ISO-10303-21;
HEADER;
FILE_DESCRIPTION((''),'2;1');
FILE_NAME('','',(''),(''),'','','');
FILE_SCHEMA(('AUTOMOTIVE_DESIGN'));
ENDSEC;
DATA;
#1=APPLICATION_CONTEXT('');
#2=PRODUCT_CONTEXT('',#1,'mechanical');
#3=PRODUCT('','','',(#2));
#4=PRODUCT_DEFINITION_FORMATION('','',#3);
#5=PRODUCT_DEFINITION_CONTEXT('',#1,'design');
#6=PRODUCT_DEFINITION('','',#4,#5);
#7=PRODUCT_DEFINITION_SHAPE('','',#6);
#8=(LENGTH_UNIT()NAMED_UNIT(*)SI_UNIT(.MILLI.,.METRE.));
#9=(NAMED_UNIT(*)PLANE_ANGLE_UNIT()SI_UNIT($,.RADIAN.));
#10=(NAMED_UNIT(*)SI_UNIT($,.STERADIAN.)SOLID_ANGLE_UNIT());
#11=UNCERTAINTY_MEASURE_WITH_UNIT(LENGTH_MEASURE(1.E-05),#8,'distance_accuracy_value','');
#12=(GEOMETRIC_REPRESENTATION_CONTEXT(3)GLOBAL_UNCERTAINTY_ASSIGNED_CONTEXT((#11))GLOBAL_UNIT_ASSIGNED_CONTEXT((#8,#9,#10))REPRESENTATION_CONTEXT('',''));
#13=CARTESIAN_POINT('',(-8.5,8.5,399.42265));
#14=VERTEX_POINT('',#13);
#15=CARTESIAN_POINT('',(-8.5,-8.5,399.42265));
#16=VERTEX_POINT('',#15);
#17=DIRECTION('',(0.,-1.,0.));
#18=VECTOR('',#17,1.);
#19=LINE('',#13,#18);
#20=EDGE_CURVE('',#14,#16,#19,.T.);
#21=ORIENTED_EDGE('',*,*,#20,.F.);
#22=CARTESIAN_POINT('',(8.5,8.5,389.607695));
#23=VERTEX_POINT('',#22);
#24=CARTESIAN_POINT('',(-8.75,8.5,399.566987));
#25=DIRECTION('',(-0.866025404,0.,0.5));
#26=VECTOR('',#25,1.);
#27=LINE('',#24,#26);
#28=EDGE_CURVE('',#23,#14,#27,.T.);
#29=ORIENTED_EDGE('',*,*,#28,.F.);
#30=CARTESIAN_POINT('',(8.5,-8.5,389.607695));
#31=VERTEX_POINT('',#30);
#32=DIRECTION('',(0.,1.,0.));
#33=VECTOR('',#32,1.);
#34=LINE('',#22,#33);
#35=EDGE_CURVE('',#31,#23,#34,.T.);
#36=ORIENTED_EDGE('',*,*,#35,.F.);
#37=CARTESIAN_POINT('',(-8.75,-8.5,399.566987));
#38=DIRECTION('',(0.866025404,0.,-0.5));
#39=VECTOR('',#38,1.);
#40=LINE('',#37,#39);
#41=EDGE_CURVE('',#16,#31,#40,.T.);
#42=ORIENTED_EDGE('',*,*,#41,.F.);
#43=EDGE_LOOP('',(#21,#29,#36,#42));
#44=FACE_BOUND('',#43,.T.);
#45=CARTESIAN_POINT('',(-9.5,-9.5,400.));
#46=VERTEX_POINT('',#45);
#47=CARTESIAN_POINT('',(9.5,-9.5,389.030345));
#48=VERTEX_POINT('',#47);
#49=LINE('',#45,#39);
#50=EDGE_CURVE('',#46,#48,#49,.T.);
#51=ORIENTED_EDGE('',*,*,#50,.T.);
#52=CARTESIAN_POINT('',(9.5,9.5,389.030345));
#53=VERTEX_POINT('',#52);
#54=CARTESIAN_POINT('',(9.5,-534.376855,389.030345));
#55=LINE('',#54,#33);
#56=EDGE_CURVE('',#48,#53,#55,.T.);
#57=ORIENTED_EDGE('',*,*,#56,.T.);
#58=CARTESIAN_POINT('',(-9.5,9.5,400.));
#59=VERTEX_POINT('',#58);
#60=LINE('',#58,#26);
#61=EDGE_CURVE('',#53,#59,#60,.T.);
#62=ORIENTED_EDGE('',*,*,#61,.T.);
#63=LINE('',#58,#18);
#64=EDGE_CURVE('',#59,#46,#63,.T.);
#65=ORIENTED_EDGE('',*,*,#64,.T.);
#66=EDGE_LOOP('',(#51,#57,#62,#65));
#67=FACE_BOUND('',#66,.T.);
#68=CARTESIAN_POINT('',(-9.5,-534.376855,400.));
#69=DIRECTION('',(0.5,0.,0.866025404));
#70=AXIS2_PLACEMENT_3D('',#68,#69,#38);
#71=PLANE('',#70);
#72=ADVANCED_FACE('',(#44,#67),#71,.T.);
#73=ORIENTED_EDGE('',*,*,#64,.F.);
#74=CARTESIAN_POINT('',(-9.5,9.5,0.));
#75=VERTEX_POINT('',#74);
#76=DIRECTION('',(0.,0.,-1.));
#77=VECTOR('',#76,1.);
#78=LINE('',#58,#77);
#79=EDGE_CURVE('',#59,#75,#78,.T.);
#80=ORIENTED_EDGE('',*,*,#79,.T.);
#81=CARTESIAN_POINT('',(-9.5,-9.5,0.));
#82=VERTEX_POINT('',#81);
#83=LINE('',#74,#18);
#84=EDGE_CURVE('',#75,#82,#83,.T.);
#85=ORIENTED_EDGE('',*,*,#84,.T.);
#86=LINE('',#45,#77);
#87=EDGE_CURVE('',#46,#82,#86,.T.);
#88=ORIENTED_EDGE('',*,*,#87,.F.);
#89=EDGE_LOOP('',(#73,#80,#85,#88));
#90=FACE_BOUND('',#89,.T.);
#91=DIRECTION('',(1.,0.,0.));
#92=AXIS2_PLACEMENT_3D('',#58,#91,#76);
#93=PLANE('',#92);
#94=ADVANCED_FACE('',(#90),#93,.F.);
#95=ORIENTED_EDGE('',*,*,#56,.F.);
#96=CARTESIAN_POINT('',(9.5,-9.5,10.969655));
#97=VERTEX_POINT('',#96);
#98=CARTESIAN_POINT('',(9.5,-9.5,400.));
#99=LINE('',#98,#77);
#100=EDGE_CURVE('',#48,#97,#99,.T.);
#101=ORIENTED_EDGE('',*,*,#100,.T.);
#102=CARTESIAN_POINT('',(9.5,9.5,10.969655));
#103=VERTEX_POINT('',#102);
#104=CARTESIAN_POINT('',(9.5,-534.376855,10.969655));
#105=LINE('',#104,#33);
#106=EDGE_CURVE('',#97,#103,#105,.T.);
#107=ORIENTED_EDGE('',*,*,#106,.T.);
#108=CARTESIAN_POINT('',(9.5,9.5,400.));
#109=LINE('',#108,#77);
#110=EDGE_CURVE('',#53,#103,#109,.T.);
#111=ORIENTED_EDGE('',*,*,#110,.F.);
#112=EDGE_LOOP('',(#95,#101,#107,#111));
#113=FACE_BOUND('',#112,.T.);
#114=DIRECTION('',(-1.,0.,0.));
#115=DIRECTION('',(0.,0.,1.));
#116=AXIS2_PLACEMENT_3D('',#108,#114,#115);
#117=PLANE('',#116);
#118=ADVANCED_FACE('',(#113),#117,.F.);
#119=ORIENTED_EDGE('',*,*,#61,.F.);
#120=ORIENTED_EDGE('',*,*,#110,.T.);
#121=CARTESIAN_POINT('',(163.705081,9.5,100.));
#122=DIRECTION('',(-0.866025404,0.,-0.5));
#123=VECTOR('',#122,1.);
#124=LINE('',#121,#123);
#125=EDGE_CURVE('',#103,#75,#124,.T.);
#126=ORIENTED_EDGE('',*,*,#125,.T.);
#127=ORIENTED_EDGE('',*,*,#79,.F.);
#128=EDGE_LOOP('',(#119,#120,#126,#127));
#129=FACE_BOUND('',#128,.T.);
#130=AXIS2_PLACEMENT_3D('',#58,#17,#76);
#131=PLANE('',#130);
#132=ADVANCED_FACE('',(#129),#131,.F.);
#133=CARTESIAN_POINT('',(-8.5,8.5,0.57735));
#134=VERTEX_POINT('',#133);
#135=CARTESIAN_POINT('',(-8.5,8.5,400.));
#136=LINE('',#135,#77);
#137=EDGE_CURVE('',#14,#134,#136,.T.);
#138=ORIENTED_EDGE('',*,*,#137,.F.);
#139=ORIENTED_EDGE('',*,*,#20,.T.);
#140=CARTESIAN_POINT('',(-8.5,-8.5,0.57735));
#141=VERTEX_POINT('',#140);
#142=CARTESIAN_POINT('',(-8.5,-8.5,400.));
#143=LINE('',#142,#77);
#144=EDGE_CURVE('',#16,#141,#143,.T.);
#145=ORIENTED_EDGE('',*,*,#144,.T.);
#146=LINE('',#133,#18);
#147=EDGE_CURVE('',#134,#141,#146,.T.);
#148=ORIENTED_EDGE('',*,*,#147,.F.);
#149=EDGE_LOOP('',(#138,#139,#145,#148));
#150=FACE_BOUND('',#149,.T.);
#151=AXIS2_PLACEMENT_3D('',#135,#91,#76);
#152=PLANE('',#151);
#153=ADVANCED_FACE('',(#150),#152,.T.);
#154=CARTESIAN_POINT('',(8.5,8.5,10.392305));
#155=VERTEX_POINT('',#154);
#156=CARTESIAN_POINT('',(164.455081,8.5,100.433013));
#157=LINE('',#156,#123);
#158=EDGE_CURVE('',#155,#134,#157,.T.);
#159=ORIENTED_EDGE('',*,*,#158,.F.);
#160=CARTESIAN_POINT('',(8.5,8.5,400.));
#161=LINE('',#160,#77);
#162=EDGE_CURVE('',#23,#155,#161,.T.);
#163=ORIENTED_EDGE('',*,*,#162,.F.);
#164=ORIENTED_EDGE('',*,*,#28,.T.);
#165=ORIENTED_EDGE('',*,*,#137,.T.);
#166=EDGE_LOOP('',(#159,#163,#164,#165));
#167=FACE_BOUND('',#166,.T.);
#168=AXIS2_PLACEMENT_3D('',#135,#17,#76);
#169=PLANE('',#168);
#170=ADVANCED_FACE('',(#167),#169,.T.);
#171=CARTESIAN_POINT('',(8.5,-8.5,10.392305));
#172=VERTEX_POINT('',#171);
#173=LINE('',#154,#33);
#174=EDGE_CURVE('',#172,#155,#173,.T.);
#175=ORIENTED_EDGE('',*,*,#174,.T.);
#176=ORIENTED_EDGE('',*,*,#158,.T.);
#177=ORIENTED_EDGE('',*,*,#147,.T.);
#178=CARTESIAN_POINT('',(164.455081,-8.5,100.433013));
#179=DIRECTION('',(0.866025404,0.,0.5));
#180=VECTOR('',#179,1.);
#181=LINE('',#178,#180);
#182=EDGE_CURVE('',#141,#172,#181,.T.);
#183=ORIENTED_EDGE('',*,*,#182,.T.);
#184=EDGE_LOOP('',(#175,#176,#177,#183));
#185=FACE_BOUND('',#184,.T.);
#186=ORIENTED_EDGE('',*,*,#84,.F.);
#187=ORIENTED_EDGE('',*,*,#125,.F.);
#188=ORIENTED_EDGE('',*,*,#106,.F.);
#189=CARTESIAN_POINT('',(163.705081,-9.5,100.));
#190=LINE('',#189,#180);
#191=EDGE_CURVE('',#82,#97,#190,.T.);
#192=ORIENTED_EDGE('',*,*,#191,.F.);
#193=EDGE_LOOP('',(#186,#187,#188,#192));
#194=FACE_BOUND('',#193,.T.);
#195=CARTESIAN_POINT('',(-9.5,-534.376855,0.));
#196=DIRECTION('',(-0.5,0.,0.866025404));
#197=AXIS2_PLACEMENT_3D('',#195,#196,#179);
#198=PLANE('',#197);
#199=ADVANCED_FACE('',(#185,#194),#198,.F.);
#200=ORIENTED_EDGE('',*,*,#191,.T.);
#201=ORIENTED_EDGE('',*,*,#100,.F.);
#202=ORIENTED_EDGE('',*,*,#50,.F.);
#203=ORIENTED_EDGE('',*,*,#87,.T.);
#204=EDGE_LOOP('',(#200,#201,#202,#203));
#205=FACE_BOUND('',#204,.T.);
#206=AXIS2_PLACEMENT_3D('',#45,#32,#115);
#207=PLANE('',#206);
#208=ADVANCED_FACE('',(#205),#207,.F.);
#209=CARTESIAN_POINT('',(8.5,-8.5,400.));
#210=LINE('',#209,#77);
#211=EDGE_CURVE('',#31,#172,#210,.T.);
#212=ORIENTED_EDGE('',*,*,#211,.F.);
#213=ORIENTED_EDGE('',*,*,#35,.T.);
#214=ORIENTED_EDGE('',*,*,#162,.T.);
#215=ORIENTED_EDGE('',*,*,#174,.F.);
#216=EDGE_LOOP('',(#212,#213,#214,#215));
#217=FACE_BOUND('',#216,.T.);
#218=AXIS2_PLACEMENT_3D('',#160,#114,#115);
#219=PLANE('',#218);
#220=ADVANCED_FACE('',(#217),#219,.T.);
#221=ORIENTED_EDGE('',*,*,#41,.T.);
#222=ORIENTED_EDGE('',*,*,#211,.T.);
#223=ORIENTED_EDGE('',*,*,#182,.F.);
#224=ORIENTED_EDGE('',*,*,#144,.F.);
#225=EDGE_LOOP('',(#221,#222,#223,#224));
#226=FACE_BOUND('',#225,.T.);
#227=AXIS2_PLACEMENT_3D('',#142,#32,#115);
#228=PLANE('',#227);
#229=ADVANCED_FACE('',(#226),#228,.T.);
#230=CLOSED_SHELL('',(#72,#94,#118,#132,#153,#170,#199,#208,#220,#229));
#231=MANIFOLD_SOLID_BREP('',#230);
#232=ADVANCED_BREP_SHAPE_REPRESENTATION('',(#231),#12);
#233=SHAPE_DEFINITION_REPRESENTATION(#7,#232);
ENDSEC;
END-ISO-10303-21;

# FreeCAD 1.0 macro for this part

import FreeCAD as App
import Part
import Sketcher

V = App.Vector
Q = App.Units.Quantity

doc = App.newDocument("Part")
body = doc.addObject("PartDesign::Body", "Body")

sketch1 = body.newObject("Sketcher::SketchObject", "Sketch")
sketch1.AttachmentSupport = (doc.getObject("XY_Plane"), [""])
sketch1.MapMode = "FlatFace"
sketch1.addGeometry([
    Part.LineSegment(V(-10, 10, 0), V(-10, -10, 0)),
    Part.LineSegment(V(-10, -10, 0), V(10, -10, 0)),
    Part.LineSegment(V(10, -10, 0), V(10, 10, 0)),
    Part.LineSegment(V(10, 10, 0), V(-10, 10, 0)),
    Part.LineSegment(V(8, -8, 0), V(-8, -8, 0)),
    Part.LineSegment(V(-8, -8, 0), V(-8, 8, 0)),
    Part.LineSegment(V(-8, 8, 0), V(8, 8, 0)),
    Part.LineSegment(V(8, 8, 0), V(8, -8, 0)),
], False)
sketch1.addConstraint([
    Sketcher.Constraint("Coincident", 0, 2, 1, 1),
    Sketcher.Constraint("Coincident", 1, 2, 2, 1),
    Sketcher.Constraint("Coincident", 2, 2, 3, 1),
    Sketcher.Constraint("Coincident", 3, 2, 0, 1),
    Sketcher.Constraint("Coincident", 4, 2, 5, 1),
    Sketcher.Constraint("Coincident", 5, 2, 6, 1),
    Sketcher.Constraint("Coincident", 6, 2, 7, 1),
    Sketcher.Constraint("Coincident", 7, 2, 4, 1),
    Sketcher.Constraint("Vertical", 0),
    Sketcher.Constraint("Horizontal", 1),
    Sketcher.Constraint("Vertical", 2),
    Sketcher.Constraint("Horizontal", 3),
    Sketcher.Constraint("Horizontal", 4),
    Sketcher.Constraint("Vertical", 5),
    Sketcher.Constraint("Horizontal", 6),
    Sketcher.Constraint("Vertical", 7),
    Sketcher.Constraint("Symmetric", 0, 2, 2, 2, -1, 1),
    Sketcher.Constraint("Symmetric", 4, 2, 6, 2, -1, 1),
    Sketcher.Constraint("Equal", 3, 0),
    Sketcher.Constraint("Equal", 6, 5),
    Sketcher.Constraint("DistanceX", 1, 1, 1, 2, 19.0),
    Sketcher.Constraint("DistanceX", 4, 2, 4, 1, 17.0),
])
pad1 = body.newObject("PartDesign::Pad", "Pad")
pad1.Profile = sketch1
pad1.Length = 400

sketch2 = body.newObject("Sketcher::SketchObject", "Sketch001")
sketch2.AttachmentSupport = (doc.getObject("XZ_Plane"), [""])
sketch2.MapMode = "FlatFace"
sketch2.AttachmentOffset = App.Placement(V(0, 0, 9.5), App.Rotation())
sketch2.addGeometry([
    Part.LineSegment(V(-10, 0, 0), V(-712, -405, 0)),
    Part.LineSegment(V(-712, -405, 0), V(99, -1810, 0)),
    Part.LineSegment(V(99, -1810, 0), V(1523, -988, 0)),
    Part.LineSegment(V(1523, -988, 0), V(712, 416, 0)),
    Part.LineSegment(V(712, 416, 0), V(10, 11, 0)),
    Part.LineSegment(V(10, 11, 0), V(-10, 0, 0)),
], False)
sketch2.addConstraint([
    Sketcher.Constraint("Coincident", 0, 2, 1, 1),
    Sketcher.Constraint("Coincident", 1, 2, 2, 1),
    Sketcher.Constraint("Coincident", 2, 2, 3, 1),
    Sketcher.Constraint("Coincident", 3, 2, 4, 1),
    Sketcher.Constraint("Coincident", 4, 2, 5, 1),
    Sketcher.Constraint("Coincident", 5, 2, 0, 1),
    Sketcher.Constraint("PointOnObject", 5, 2, -1),
    Sketcher.Constraint("Perpendicular", 0, 1),
    Sketcher.Constraint("Perpendicular", 1, 2),
    Sketcher.Constraint("Perpendicular", 2, 3),
    Sketcher.Constraint("Perpendicular", 3, 4),
    Sketcher.Constraint("Parallel", 4, 5),
    Sketcher.Constraint("Equal", 0, 4),
    Sketcher.Constraint("Angle", 0, Q("-150 deg")),
    Sketcher.Constraint("DistanceX", 5, 2, 4, 2, 19.0),
    Sketcher.Constraint("DistanceX", -1, 1, 4, 2, 9.5),
    Sketcher.Constraint("DistanceY", 2, 2, -1, 1, 988.102798),
    Sketcher.Constraint("DistanceY", 1, 2, 4, 2, 1820.9441),
])
pocket1 = body.newObject("PartDesign::Pocket", "Pocket")
pocket1.Profile = sketch2
pocket1.Type = "ThroughAll"
pocket1.Midplane = True

sketch3 = body.newObject("Sketcher::SketchObject", "Sketch002")
sketch3.AttachmentSupport = (doc.getObject("XZ_Plane"), [""])
sketch3.MapMode = "FlatFace"
sketch3.AttachmentOffset = App.Placement(V(0, 0, 9.5), App.Rotation())
sketch3.addGeometry([
    Part.LineSegment(V(-712, 805, 0), V(-10, 400, 0)),
    Part.LineSegment(V(-10, 400, 0), V(10, 389, 0)),
    Part.LineSegment(V(10, 389, 0), V(712, -16, 0)),
    Part.LineSegment(V(712, -16, 0), V(1523, 1388, 0)),
    Part.LineSegment(V(1523, 1388, 0), V(99, 2210, 0)),
    Part.LineSegment(V(99, 2210, 0), V(-712, 805, 0)),
], False)
sketch3.addConstraint([
    Sketcher.Constraint("Coincident", 0, 2, 1, 1),
    Sketcher.Constraint("Coincident", 1, 2, 2, 1),
    Sketcher.Constraint("Coincident", 2, 2, 3, 1),
    Sketcher.Constraint("Coincident", 3, 2, 4, 1),
    Sketcher.Constraint("Coincident", 4, 2, 5, 1),
    Sketcher.Constraint("Coincident", 5, 2, 0, 1),
    Sketcher.Constraint("Parallel", 0, 1),
    Sketcher.Constraint("Parallel", 1, 2),
    Sketcher.Constraint("Perpendicular", 2, 3),
    Sketcher.Constraint("Perpendicular", 3, 4),
    Sketcher.Constraint("Perpendicular", 4, 5),
    Sketcher.Constraint("Equal", 0, 2),
    Sketcher.Constraint("Angle", 0, Q("-30 deg")),
    Sketcher.Constraint("DistanceY", -1, 1, 0, 2, 400.0),
    Sketcher.Constraint("DistanceX", 0, 2, 1, 2, 19.0),
    Sketcher.Constraint("DistanceX", 0, 2, -1, 1, 9.5),
    Sketcher.Constraint("DistanceY", -1, 1, 3, 2, 1388.102798),
    Sketcher.Constraint("DistanceY", 1, 2, 4, 2, 1820.9441),
])
pocket2 = body.newObject("PartDesign::Pocket", "Pocket001")
pocket2.Profile = sketch3
pocket2.Type = "ThroughAll"
pocket2.Midplane = True

doc.recompute()
